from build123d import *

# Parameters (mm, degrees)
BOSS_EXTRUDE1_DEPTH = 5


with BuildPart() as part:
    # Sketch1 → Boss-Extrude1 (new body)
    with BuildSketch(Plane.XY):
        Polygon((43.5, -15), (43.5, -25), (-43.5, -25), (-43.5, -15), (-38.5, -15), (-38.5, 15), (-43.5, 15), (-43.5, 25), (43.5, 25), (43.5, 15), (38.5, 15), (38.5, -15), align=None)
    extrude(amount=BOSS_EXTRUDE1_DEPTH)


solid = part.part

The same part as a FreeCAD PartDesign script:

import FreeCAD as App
import Part
import Sketcher

V = App.Vector

doc = App.newDocument("Part")
body = doc.addObject("PartDesign::Body", "Body")

sketch1 = body.newObject("Sketcher::SketchObject", "Sketch")
sketch1.AttachmentSupport = (doc.getObject("XY_Plane"), [""])
sketch1.MapMode = "FlatFace"
sketch1.addGeometry([
    Part.LineSegment(V(44, -25, 0), V(44, -15, 0)),
    Part.LineSegment(V(44, -15, 0), V(38, -15, 0)),
    Part.LineSegment(V(38, -15, 0), V(38, 15, 0)),
    Part.LineSegment(V(38, 15, 0), V(44, 15, 0)),
    Part.LineSegment(V(44, 15, 0), V(44, 25, 0)),
    Part.LineSegment(V(44, 25, 0), V(-44, 25, 0)),
    Part.LineSegment(V(-44, 25, 0), V(-44, 15, 0)),
    Part.LineSegment(V(-44, 15, 0), V(-38, 15, 0)),
    Part.LineSegment(V(-38, 15, 0), V(-38, -15, 0)),
    Part.LineSegment(V(-38, -15, 0), V(-44, -15, 0)),
    Part.LineSegment(V(-44, -15, 0), V(-44, -25, 0)),
    Part.LineSegment(V(-44, -25, 0), V(44, -25, 0)),
], False)
sketch1.addConstraint([
    Sketcher.Constraint("Coincident", 0, 2, 1, 1),
    Sketcher.Constraint("Coincident", 1, 2, 2, 1),
    Sketcher.Constraint("Coincident", 2, 2, 3, 1),
    Sketcher.Constraint("Coincident", 3, 2, 4, 1),
    Sketcher.Constraint("Coincident", 4, 2, 5, 1),
    Sketcher.Constraint("Coincident", 5, 2, 6, 1),
    Sketcher.Constraint("Coincident", 6, 2, 7, 1),
    Sketcher.Constraint("Coincident", 7, 2, 8, 1),
    Sketcher.Constraint("Coincident", 8, 2, 9, 1),
    Sketcher.Constraint("Coincident", 9, 2, 10, 1),
    Sketcher.Constraint("Coincident", 10, 2, 11, 1),
    Sketcher.Constraint("Coincident", 11, 2, 0, 1),
    Sketcher.Constraint("Vertical", 0),
    Sketcher.Constraint("Horizontal", 1),
    Sketcher.Constraint("Vertical", 2),
    Sketcher.Constraint("Horizontal", 3),
    Sketcher.Constraint("Vertical", 4),
    Sketcher.Constraint("Horizontal", 5),
    Sketcher.Constraint("Vertical", 6),
    Sketcher.Constraint("Horizontal", 7),
    Sketcher.Constraint("Vertical", 8),
    Sketcher.Constraint("Horizontal", 9),
    Sketcher.Constraint("Vertical", 10),
    Sketcher.Constraint("Horizontal", 11),
    Sketcher.Constraint("Symmetric", 0, 2, 6, 2, -1, 1),
    Sketcher.Constraint("Symmetric", 2, 2, 8, 2, -1, 1),
    Sketcher.Constraint("Symmetric", 4, 2, 10, 2, -1, 1),
    Sketcher.Constraint("Symmetric", 3, 2, 6, 2, -2),
    Sketcher.Constraint("DistanceX", 1, 2, 1, 1, 5.0),
    Sketcher.Constraint("DistanceX", 5, 2, 5, 1, 87.0),
    Sketcher.Constraint("DistanceY", 0, 1, 0, 2, 10.0),
    Sketcher.Constraint("DistanceY", 2, 1, 2, 2, 30.0),
])
pad1 = body.newObject("PartDesign::Pad", "Pad")
pad1.Profile = sketch1
pad1.Length = 5

doc.recompute()
